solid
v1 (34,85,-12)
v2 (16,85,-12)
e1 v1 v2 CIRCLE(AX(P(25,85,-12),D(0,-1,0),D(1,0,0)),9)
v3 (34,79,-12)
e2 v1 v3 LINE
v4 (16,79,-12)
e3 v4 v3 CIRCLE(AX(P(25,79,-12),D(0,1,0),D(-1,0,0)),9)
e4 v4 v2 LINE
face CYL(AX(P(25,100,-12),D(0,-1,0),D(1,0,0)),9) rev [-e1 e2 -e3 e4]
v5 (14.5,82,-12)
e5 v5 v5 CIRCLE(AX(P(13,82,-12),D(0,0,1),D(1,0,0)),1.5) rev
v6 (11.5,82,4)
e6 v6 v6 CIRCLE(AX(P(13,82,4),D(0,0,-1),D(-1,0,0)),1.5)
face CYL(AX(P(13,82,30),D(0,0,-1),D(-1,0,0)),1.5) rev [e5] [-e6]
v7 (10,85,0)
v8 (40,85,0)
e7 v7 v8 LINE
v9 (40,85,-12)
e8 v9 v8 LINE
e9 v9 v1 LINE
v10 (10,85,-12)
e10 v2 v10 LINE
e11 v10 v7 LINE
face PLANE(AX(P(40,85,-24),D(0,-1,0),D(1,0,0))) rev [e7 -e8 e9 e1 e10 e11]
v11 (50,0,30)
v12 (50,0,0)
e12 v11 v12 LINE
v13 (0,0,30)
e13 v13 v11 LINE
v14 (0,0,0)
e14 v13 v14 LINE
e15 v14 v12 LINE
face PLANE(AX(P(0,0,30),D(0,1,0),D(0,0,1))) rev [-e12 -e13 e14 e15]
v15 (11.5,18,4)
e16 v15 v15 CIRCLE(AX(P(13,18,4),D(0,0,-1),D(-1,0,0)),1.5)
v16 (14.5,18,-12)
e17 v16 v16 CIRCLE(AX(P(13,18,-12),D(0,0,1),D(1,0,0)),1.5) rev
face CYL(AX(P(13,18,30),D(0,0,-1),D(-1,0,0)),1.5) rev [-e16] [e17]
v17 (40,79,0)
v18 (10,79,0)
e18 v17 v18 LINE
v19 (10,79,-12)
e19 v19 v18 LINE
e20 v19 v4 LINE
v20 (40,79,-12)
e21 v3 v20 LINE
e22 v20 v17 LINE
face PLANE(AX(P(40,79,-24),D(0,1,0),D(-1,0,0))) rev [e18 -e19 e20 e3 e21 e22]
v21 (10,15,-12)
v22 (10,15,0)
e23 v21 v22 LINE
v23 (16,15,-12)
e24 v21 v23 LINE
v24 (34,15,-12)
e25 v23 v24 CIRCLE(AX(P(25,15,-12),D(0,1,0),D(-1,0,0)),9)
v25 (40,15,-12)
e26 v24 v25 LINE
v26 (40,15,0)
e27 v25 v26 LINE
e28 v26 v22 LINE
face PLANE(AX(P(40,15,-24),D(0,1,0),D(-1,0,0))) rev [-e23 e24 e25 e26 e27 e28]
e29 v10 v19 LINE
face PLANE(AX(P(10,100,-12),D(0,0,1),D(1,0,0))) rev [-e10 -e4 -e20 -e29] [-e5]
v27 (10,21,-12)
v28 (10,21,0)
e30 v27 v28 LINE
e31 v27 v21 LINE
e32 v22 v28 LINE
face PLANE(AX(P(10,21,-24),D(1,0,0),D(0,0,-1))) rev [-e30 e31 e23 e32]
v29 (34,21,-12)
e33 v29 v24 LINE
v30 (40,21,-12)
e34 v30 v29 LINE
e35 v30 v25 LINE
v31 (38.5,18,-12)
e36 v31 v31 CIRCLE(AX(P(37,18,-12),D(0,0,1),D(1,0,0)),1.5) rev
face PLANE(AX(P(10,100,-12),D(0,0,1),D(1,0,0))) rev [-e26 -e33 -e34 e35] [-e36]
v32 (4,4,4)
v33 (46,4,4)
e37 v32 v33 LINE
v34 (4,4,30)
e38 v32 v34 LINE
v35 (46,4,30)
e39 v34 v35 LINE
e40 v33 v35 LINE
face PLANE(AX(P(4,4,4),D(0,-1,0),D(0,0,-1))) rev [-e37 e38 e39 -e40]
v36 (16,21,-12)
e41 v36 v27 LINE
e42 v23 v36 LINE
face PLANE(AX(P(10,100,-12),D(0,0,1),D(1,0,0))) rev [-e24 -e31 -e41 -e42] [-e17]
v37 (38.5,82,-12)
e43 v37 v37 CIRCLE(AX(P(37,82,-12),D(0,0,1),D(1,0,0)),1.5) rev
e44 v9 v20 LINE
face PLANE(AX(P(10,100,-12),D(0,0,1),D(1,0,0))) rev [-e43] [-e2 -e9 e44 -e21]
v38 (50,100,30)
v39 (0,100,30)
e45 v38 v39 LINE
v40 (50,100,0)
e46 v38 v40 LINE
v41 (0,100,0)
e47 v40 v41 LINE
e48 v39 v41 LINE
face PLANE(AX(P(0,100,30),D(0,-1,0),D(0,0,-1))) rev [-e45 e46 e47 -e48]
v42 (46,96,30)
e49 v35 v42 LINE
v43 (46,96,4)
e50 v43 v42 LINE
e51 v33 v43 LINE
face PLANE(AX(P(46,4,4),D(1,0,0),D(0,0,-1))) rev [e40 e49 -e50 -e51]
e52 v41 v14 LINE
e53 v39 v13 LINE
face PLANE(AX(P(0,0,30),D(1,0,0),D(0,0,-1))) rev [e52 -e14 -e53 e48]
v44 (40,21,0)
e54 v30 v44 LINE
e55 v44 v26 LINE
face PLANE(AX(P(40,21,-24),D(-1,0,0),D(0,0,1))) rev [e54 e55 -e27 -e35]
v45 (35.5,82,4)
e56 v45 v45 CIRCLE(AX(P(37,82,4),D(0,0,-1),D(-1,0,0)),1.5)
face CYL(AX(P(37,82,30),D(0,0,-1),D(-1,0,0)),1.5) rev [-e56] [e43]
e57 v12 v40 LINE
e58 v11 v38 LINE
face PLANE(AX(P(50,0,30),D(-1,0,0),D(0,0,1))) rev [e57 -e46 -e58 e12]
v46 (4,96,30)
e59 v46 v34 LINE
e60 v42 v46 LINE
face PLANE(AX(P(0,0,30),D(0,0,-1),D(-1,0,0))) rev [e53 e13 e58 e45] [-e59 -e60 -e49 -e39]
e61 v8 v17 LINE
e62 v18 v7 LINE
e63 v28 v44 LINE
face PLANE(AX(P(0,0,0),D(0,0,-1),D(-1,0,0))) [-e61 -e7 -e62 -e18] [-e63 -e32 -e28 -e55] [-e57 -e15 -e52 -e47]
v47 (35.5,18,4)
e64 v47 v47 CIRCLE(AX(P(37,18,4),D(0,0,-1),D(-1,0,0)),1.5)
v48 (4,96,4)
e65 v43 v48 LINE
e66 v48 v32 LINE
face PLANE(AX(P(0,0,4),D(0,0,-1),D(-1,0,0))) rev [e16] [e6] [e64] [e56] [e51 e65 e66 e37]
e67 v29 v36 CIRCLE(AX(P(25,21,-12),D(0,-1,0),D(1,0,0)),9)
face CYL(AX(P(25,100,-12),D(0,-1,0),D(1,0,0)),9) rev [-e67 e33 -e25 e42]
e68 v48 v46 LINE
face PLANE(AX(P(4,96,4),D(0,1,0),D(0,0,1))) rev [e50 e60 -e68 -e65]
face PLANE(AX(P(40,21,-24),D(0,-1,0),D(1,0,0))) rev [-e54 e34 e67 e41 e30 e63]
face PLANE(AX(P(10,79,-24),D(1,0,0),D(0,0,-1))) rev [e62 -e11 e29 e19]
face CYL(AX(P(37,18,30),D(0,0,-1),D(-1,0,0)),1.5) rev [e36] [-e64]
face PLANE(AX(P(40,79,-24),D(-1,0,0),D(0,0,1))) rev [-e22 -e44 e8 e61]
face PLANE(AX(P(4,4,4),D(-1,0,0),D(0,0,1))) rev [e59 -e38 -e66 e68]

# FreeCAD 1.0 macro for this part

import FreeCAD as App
import Part
import Sketcher

V = App.Vector
Q = App.Units.Quantity


def add_polygon(sketch, points):
    """Adds a closed chain of lines whose ends are joined by coincident constraints."""
    first, n = sketch.GeometryCount, len(points)
    for a, b in zip(points, points[1:] + points[:1]):
        sketch.addGeometry(Part.LineSegment(App.Vector(*a, 0), App.Vector(*b, 0)), False)
    for i in range(n):
        sketch.addConstraint(Sketcher.Constraint("Coincident", first + i, 2, first + (i + 1) % n, 1))

doc = App.newDocument("Part")
params = doc.addObject("Spreadsheet::Sheet", "Params")
for row, (alias, value) in enumerate([
    ("sketch1_width", "50 mm"),
    ("sketch1_height", "100 mm"),
    ("pad1_length", "30 mm"),
    ("sketch2_width", "42 mm"),
    ("sketch2_height", "92 mm"),
    ("pocket1_length", "26 mm"),
    ("sketch3_width", "30 mm"),
    ("sketch3_height", "6 mm"),
    ("pad2_length", "24 mm"),
    ("sketch4_diameter", "18 mm"),
    ("sketch5_diameter", "3 mm"),
    ("sketch6_width", "30 mm"),
    ("sketch6_height", "12 mm"),
], start=1):
    params.set(f"A{row}", alias)
    params.set(f"B{row}", "=" + value)
    params.setAlias(f"B{row}", alias)

body = doc.addObject("PartDesign::Body", "Body")

# Sketch on XY plane
sketch1 = body.newObject("Sketcher::SketchObject", "Sketch")
sketch1.AttachmentSupport = (doc.getObject("XY_Plane"), [""])
sketch1.MapMode = "FlatFace"
add_polygon(sketch1, [(0, 100), (0, 0), (50, 0), (50, 100)])  # lines 0-3
sketch1.addConstraint([
    Sketcher.Constraint("Vertical", 0),
    Sketcher.Constraint("Horizontal", 1),
    Sketcher.Constraint("Vertical", 2),
    Sketcher.Constraint("Horizontal", 3),
    Sketcher.Constraint("Coincident", 0, 2, -1, 1),
    Sketcher.Constraint("DistanceX", 1, 1, 1, 2, Q("50 mm")),
    Sketcher.Constraint("DistanceY", 0, 2, 0, 1, Q("100 mm")),
])
sketch1.setExpression("Constraints[9]", "Params.sketch1_width")
sketch1.setExpression("Constraints[10]", "Params.sketch1_height")
pad1 = body.newObject("PartDesign::Pad", "Pad")
pad1.Profile = sketch1
pad1.setExpression("Length", "Params.pad1_length")

# Sketch on XY plane
sketch2 = body.newObject("Sketcher::SketchObject", "Sketch001")
sketch2.AttachmentSupport = (doc.getObject("XY_Plane"), [""])
sketch2.MapMode = "FlatFace"
sketch2.AttachmentOffset = App.Placement(V(0, 0, 30), App.Rotation())
add_polygon(sketch2, [(4, 96), (4, 4), (46, 4), (46, 96)])  # lines 0-3
sketch2.addConstraint([
    Sketcher.Constraint("Vertical", 0),
    Sketcher.Constraint("Horizontal", 1),
    Sketcher.Constraint("Vertical", 2),
    Sketcher.Constraint("Horizontal", 3),
    Sketcher.Constraint("DistanceX", 1, 1, 1, 2, Q("42 mm")),
    Sketcher.Constraint("DistanceY", 0, 2, 0, 1, Q("92 mm")),
    Sketcher.Constraint("DistanceX", -1, 1, 0, 2, Q("4 mm")),
    Sketcher.Constraint("DistanceY", -1, 1, 0, 2, Q("4 mm")),
])
sketch2.setExpression("Constraints[8]", "Params.sketch2_width")
sketch2.setExpression("Constraints[9]", "Params.sketch2_height")
pocket1 = body.newObject("PartDesign::Pocket", "Pocket")
pocket1.Profile = sketch2
pocket1.setExpression("Length", "Params.pocket1_length")

# Sketch on XY plane
sketch3 = body.newObject("Sketcher::SketchObject", "Sketch002")
sketch3.AttachmentSupport = (doc.getObject("XY_Plane"), [""])
sketch3.MapMode = "FlatFace"
add_polygon(sketch3, [(40, 21), (40, 15), (10, 15), (10, 21)])  # lines 0-3
add_polygon(sketch3, [(40, 85), (40, 79), (10, 79), (10, 85)])  # lines 4-7
sketch3.addConstraint([
    Sketcher.Constraint("Vertical", 0),
    Sketcher.Constraint("Horizontal", 1),
    Sketcher.Constraint("Vertical", 2),
    Sketcher.Constraint("Horizontal", 3),
    Sketcher.Constraint("Vertical", 4),
    Sketcher.Constraint("Horizontal", 5),
    Sketcher.Constraint("Vertical", 6),
    Sketcher.Constraint("Horizontal", 7),
    Sketcher.Constraint("Vertical", 3, 2, 4, 2),
    Sketcher.Constraint("Vertical", 2, 2, 5, 2),
    Sketcher.Constraint("Equal", 2, 4),
    Sketcher.Constraint("DistanceX", 1, 2, 1, 1, Q("30 mm")),
    Sketcher.Constraint("DistanceY", 0, 2, 0, 1, Q("6 mm")),
    Sketcher.Constraint("DistanceX", -1, 1, 0, 2, Q("40 mm")),
    Sketcher.Constraint("DistanceY", -1, 1, 0, 2, Q("15 mm")),
    Sketcher.Constraint("DistanceY", -1, 1, 4, 2, Q("79 mm")),
])
sketch3.setExpression("Constraints[19]", "Params.sketch3_width")
sketch3.setExpression("Constraints[20]", "Params.sketch3_height")
pad2 = body.newObject("PartDesign::Pad", "Pad001")
pad2.Profile = sketch3
pad2.setExpression("Length", "Params.pad2_length")
pad2.Reversed = True

# Sketch on XZ plane
sketch4 = body.newObject("Sketcher::SketchObject", "Sketch003")
sketch4.AttachmentSupport = (doc.getObject("XZ_Plane"), [""])
sketch4.MapMode = "FlatFace"
sketch4.AttachmentOffset = App.Placement(V(0, 0, -15), App.Rotation())
sketch4.addGeometry(Part.Circle(V(25, -12, 0), V(0, 0, 1), 9), False)
sketch4.addConstraint([
    Sketcher.Constraint("Diameter", 0, Q("18 mm")),
    Sketcher.Constraint("DistanceX", -1, 1, 0, 3, Q("25 mm")),
    Sketcher.Constraint("DistanceY", 0, 3, -1, 1, Q("12 mm")),
])
sketch4.setExpression("Constraints[0]", "Params.sketch4_diameter")
pocket2 = body.newObject("PartDesign::Pocket", "Pocket001")
pocket2.Profile = sketch4
pocket2.Type = "ThroughAll"
pocket2.Midplane = True

# Sketch on XY plane
sketch5 = body.newObject("Sketcher::SketchObject", "Sketch004")
sketch5.AttachmentSupport = (doc.getObject("XY_Plane"), [""])
sketch5.MapMode = "FlatFace"
sketch5.AttachmentOffset = App.Placement(V(0, 0, -24), App.Rotation())
sketch5.addGeometry([
    Part.Circle(V(13, 18, 0), V(0, 0, 1), 1.5),
    Part.Circle(V(37, 18, 0), V(0, 0, 1), 1.5),
    Part.Circle(V(13, 82, 0), V(0, 0, 1), 1.5),
    Part.Circle(V(37, 82, 0), V(0, 0, 1), 1.5),
], False)
sketch5.addConstraint([
    Sketcher.Constraint("Equal", 0, 1),
    Sketcher.Constraint("Equal", 1, 2),
    Sketcher.Constraint("Equal", 2, 3),
    Sketcher.Constraint("Horizontal", 0, 3, 1, 3),
    Sketcher.Constraint("Horizontal", 2, 3, 3, 3),
    Sketcher.Constraint("Vertical", 0, 3, 2, 3),
    Sketcher.Constraint("Vertical", 1, 3, 3, 3),
    Sketcher.Constraint("Diameter", 0, Q("3 mm")),
    Sketcher.Constraint("DistanceX", -1, 1, 0, 3, Q("13 mm")),
    Sketcher.Constraint("DistanceY", -1, 1, 0, 3, Q("18 mm")),
    Sketcher.Constraint("DistanceX", -1, 1, 1, 3, Q("37 mm")),
    Sketcher.Constraint("DistanceY", -1, 1, 2, 3, Q("82 mm")),
])
sketch5.setExpression("Constraints[7]", "Params.sketch5_diameter")
pocket3 = body.newObject("PartDesign::Pocket", "Pocket002")
pocket3.Profile = sketch5
pocket3.Type = "ThroughAll"
pocket3.Midplane = True

# Sketch on XZ plane
sketch6 = body.newObject("Sketcher::SketchObject", "Sketch005")
sketch6.AttachmentSupport = (doc.getObject("XZ_Plane"), [""])
sketch6.MapMode = "FlatFace"
sketch6.AttachmentOffset = App.Placement(V(0, 0, -15), App.Rotation())
add_polygon(sketch6, [(10, -12), (10, -24), (40, -24), (40, -12)])  # lines 0-3
sketch6.addConstraint([
    Sketcher.Constraint("Vertical", 0),
    Sketcher.Constraint("Horizontal", 1),
    Sketcher.Constraint("Vertical", 2),
    Sketcher.Constraint("Horizontal", 3),
    Sketcher.Constraint("DistanceX", 1, 1, 1, 2, Q("30 mm")),
    Sketcher.Constraint("DistanceY", 0, 2, 0, 1, Q("12 mm")),
    Sketcher.Constraint("DistanceX", -1, 1, 0, 2, Q("10 mm")),
    Sketcher.Constraint("DistanceY", 0, 2, -1, 1, Q("24 mm")),
])
sketch6.setExpression("Constraints[8]", "Params.sketch6_width")
sketch6.setExpression("Constraints[9]", "Params.sketch6_height")
pocket4 = body.newObject("PartDesign::Pocket", "Pocket003")
pocket4.Profile = sketch6
pocket4.Type = "ThroughAll"
pocket4.Midplane = True

doc.recompute()
